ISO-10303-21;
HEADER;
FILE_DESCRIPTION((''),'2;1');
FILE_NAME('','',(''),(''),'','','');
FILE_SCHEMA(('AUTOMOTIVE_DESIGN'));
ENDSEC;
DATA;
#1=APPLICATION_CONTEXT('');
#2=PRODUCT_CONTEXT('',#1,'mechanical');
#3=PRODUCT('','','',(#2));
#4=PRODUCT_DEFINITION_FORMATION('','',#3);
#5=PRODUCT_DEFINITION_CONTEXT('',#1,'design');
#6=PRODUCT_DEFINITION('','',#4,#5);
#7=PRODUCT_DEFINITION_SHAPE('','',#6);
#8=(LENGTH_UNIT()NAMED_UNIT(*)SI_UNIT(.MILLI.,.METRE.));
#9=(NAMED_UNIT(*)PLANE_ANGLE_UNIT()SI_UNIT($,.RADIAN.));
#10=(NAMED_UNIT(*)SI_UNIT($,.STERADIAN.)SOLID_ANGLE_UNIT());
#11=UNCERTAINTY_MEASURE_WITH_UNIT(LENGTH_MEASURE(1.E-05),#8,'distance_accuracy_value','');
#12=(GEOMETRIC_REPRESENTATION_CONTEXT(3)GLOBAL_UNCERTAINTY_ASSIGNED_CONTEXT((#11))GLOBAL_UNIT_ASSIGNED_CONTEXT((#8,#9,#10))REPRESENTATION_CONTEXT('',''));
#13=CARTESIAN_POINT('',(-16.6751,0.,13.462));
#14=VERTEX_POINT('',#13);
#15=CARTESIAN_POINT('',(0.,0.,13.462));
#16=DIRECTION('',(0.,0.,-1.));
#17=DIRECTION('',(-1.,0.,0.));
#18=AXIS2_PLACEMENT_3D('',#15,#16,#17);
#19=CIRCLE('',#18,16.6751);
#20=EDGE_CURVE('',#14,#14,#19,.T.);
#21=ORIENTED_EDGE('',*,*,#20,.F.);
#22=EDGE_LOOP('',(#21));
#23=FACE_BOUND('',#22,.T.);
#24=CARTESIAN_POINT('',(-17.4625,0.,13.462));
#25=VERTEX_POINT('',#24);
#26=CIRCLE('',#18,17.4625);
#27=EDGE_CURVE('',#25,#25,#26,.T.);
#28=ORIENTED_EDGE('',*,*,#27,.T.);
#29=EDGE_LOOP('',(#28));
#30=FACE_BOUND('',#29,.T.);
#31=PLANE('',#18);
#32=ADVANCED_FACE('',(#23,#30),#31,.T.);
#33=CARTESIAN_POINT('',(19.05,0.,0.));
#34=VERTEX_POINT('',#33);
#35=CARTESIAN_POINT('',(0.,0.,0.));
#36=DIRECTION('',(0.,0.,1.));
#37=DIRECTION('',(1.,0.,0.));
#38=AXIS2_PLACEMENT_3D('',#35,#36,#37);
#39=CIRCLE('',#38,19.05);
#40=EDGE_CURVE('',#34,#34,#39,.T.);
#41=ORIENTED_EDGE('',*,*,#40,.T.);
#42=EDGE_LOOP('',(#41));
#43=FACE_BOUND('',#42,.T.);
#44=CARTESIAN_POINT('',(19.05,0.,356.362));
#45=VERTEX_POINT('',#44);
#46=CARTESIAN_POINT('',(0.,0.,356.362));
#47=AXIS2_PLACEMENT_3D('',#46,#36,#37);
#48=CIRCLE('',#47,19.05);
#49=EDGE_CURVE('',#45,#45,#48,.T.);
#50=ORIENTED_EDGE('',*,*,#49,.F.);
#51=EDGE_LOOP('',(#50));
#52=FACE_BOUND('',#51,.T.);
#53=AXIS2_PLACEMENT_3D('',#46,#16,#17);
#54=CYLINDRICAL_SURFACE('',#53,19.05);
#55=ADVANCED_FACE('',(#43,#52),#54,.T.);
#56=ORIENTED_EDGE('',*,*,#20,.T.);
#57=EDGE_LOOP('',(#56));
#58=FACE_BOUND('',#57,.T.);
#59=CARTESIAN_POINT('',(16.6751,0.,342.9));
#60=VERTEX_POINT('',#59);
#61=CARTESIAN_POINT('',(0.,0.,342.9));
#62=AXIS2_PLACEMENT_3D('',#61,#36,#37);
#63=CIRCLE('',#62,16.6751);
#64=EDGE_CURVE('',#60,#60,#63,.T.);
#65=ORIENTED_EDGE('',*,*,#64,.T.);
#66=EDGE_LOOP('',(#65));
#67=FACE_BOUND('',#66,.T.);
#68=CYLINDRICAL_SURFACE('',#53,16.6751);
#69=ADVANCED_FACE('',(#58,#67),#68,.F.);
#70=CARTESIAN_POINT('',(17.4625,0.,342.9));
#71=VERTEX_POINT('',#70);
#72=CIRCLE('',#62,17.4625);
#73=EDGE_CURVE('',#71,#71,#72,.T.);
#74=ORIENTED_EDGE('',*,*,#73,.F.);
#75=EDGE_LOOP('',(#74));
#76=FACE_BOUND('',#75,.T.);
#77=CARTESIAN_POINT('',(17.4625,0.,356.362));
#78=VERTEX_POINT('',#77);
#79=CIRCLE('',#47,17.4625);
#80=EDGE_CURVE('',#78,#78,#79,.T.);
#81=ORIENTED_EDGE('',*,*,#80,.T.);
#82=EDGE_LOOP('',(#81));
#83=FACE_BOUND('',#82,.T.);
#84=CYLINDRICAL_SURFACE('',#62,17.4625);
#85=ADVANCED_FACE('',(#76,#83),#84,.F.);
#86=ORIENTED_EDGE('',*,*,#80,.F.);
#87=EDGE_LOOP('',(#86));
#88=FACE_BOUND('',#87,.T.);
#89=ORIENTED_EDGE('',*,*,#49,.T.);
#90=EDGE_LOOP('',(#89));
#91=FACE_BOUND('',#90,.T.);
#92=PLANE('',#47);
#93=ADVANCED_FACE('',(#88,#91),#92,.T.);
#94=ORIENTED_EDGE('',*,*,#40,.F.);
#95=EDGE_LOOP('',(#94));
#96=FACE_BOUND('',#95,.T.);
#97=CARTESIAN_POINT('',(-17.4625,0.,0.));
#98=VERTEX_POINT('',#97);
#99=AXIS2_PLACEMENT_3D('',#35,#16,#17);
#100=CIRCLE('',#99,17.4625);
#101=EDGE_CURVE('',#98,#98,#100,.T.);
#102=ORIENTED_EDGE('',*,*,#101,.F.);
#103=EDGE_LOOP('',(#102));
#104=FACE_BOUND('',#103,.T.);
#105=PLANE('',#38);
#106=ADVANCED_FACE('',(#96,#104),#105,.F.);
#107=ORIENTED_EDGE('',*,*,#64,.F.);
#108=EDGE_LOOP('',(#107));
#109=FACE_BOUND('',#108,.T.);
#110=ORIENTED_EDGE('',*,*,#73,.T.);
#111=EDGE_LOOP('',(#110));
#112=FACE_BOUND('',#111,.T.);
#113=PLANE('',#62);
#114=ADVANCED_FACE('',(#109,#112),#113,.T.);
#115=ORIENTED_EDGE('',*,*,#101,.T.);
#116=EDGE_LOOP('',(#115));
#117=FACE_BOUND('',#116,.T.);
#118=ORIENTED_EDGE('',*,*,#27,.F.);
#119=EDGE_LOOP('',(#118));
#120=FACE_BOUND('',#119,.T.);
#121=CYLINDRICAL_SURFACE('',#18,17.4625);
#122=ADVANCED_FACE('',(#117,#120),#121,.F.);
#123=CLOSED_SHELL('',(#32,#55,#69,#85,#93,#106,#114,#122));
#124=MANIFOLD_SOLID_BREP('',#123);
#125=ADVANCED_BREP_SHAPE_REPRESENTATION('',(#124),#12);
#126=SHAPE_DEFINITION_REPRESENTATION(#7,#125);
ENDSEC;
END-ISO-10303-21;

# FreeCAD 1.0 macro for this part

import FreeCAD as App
import Part
import Sketcher
from FreeCAD import Vector
Q = App.Units.Quantity

doc = App.newDocument("Part")
body = doc.addObject("PartDesign::Body", "Body")

sketch1 = body.newObject("Sketcher::SketchObject", "Sketch")
sketch1.AttachmentSupport = (doc.getObject("XY_Plane"), [""])
sketch1.MapMode = "FlatFace"
sketch1.addGeometry([
    Part.Circle(Vector(0, 0, 0), Vector(0, 0, 1), 19.05),
    Part.Circle(Vector(0, 0, 0), Vector(0, 0, 1), 16.6751),
], False)
sketch1.addConstraint([
    Sketcher.Constraint("Coincident", 0, 3, -1, 1),
    Sketcher.Constraint("Coincident", 1, 3, -1, 1),
    Sketcher.Constraint("Diameter", 0, Q("1.5 in")),
    Sketcher.Constraint("Diameter", 1, Q("1.313 in")),
])
pad1 = body.newObject("PartDesign::Pad", "Pad")
pad1.Profile = sketch1
pad1.Length = Q("14.03 in")

sketch2 = body.newObject("Sketcher::SketchObject", "Sketch001")
sketch2.AttachmentSupport = (doc.getObject("XY_Plane"), [""])
sketch2.MapMode = "FlatFace"
sketch2.AttachmentOffset = App.Placement(Vector(0, 0, 14.03 * 25.4), App.Rotation())
sketch2.addGeometry(Part.Circle(Vector(0, 0, 0), Vector(0, 0, 1), 17.4625), False)
sketch2.addConstraint([
    Sketcher.Constraint("Coincident", 0, 3, -1, 1),
    Sketcher.Constraint("Diameter", 0, Q("1.375 in")),
])
pocket1 = body.newObject("PartDesign::Pocket", "Pocket")
pocket1.Profile = sketch2
pocket1.Length = Q("0.53 in")

sketch3 = body.newObject("Sketcher::SketchObject", "Sketch002")
sketch3.AttachmentSupport = (doc.getObject("XY_Plane"), [""])
sketch3.MapMode = "FlatFace"
sketch3.AttachmentOffset = App.Placement(Vector(0, 0, 0.53 * 25.4), App.Rotation())
sketch3.addGeometry(Part.Circle(Vector(0, 0, 0), Vector(0, 0, 1), 17.4625), False)
sketch3.addConstraint([
    Sketcher.Constraint("Coincident", 0, 3, -1, 1),
    Sketcher.Constraint("Diameter", 0, Q("1.375 in")),
])
pocket2 = body.newObject("PartDesign::Pocket", "Pocket001")
pocket2.Profile = sketch3
pocket2.Length = Q("0.53 in")

doc.recompute()
